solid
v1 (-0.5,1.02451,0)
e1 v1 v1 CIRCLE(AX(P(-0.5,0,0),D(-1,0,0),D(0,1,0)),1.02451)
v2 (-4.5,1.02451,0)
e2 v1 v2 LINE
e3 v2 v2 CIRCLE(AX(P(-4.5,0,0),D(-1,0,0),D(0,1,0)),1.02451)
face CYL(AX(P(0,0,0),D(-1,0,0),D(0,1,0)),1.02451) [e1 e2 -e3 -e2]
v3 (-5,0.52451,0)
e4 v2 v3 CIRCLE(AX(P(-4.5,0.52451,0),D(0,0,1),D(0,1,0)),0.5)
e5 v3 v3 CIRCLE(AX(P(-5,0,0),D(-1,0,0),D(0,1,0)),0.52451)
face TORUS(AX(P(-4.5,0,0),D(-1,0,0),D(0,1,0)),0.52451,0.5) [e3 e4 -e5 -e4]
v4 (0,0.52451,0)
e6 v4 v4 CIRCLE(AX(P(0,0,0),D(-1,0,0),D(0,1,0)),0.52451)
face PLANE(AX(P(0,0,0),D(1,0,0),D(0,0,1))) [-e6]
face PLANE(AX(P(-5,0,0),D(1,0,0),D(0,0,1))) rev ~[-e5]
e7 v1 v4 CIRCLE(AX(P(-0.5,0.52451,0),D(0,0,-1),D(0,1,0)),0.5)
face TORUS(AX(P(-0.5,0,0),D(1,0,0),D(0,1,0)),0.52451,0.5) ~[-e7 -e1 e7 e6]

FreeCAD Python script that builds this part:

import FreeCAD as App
import Part
import Sketcher


def edges_at(feature, points):
    """Names of the edges that pass closest to the given points."""
    edges = feature.Shape.Edges
    near = lambda p: min(range(len(edges)), key=lambda i: edges[i].distToShape(Part.Vertex(*p))[0])
    return sorted({f"Edge{near(p) + 1}" for p in points})

doc = App.newDocument("Part")
body = doc.addObject("PartDesign::Body", "Body")

sketch1 = body.newObject("Sketcher::SketchObject", "Sketch")
sketch1.AttachmentSupport = (doc.getObject("YZ_Plane"), [""])
sketch1.MapMode = "FlatFace"
sketch1.addGeometry(Part.Circle(App.Vector(0, 0, 0), App.Vector(0, 0, 1), 1), False)
sketch1.addConstraint([
    Sketcher.Constraint("Coincident", 0, 3, -1, 1),
    Sketcher.Constraint("Diameter", 0, 2.04902),
])

sketch2 = body.newObject("Sketcher::SketchObject", "Sketch001")
sketch2.AttachmentSupport = (doc.getObject("XY_Plane"), [""])
sketch2.MapMode = "FlatFace"
sketch2.addGeometry(Part.LineSegment(App.Vector(0, 0, 0), App.Vector(-5, 0, 0)), False)
sketch2.addConstraint([
    Sketcher.Constraint("Horizontal", 0),
    Sketcher.Constraint("Coincident", 0, 1, -1, 1),
    Sketcher.Constraint("DistanceX", 0, 2, 0, 1, 5.0),
])
doc.recompute()

additivepipe = body.newObject("PartDesign::AdditivePipe", "AdditivePipe")
additivepipe.Profile = sketch1
additivepipe.Spine = (sketch2, ["Edge1"])
doc.recompute()

fillet = body.newObject("PartDesign::Fillet", "Fillet")
fillet.Base = (additivepipe, edges_at(additivepipe, [(-5, -1.025, 0), (0, -1.025, 0)]))
fillet.Radius = 0.5

doc.recompute()
